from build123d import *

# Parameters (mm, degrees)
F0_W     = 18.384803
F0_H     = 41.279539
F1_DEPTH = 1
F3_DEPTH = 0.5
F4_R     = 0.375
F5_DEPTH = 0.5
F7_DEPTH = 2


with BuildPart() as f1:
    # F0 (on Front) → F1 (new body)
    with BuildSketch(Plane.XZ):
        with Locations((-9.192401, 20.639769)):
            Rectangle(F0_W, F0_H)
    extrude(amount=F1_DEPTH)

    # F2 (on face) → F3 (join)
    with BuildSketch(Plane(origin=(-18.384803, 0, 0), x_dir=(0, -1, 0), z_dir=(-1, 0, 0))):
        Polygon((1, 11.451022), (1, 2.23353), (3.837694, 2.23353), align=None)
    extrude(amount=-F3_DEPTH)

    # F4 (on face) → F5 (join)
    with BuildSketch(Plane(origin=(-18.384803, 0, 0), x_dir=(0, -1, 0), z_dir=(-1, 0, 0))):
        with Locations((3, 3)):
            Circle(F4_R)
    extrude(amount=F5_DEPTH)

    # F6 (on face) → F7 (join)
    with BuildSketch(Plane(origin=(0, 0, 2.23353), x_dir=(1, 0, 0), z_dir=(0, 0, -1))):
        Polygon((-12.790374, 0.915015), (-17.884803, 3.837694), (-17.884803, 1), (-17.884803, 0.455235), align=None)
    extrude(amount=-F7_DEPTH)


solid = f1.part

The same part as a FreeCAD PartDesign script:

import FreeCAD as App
import Part
import Sketcher

V = App.Vector

doc = App.newDocument("Part")
body = doc.addObject("PartDesign::Body", "Body")

# Sketch on XZ plane
sketch1 = body.newObject("Sketcher::SketchObject", "Sketch")
sketch1.AttachmentSupport = (doc.getObject("XZ_Plane"), [""])
sketch1.MapMode = "FlatFace"
sketch1.addGeometry([
    Part.LineSegment(V(-18.384802, 41.279539, 0), V(-18.384802, 0, 0)),
    Part.LineSegment(V(-18.384802, 0, 0), V(0, 0, 0)),
    Part.LineSegment(V(0, 0, 0), V(0, 41.279539, 0)),
    Part.LineSegment(V(0, 41.279539, 0), V(-18.384802, 41.279539, 0)),
], False)
sketch1.addConstraint([
    Sketcher.Constraint("Coincident", 0, 2, 1, 1),
    Sketcher.Constraint("Coincident", 1, 2, 2, 1),
    Sketcher.Constraint("Coincident", 2, 2, 3, 1),
    Sketcher.Constraint("Coincident", 3, 2, 0, 1),
    Sketcher.Constraint("Vertical", 0),
    Sketcher.Constraint("Horizontal", 1),
    Sketcher.Constraint("Vertical", 2),
    Sketcher.Constraint("Horizontal", 3),
    Sketcher.Constraint("Coincident", 1, 2, -1, 1),
    Sketcher.Constraint("DistanceY", 0, 2, 0, 1, 41.279539),
    Sketcher.Constraint("DistanceX", 1, 1, 1, 2, 18.384803),
])
pad1 = body.newObject("PartDesign::Pad", "Pad")
pad1.Profile = sketch1
pad1.Length = 1

# Sketch on YZ plane
sketch2 = body.newObject("Sketcher::SketchObject", "Sketch001")
sketch2.AttachmentSupport = (doc.getObject("YZ_Plane"), [""])
sketch2.MapMode = "FlatFace"
sketch2.AttachmentOffset = App.Placement(V(0, 0, -18.384803), App.Rotation())
sketch2.addGeometry([
    Part.LineSegment(V(-1, 11.451022, 0), V(-1, 2.23353, 0)),
    Part.LineSegment(V(-1, 2.23353, 0), V(-3.837694, 2.23353, 0)),
    Part.LineSegment(V(-3.837694, 2.23353, 0), V(-1, 11.451022, 0)),
], False)
sketch2.addConstraint([
    Sketcher.Constraint("Coincident", 0, 2, 1, 1),
    Sketcher.Constraint("Coincident", 1, 2, 2, 1),
    Sketcher.Constraint("Coincident", 2, 2, 0, 1),
    Sketcher.Constraint("Vertical", 0),
    Sketcher.Constraint("Horizontal", 1),
    Sketcher.Constraint("DistanceX", 0, 2, -1, 1, 1.0),
    Sketcher.Constraint("Distance", 2, 9.644411),
    Sketcher.Constraint("DistanceX", 1, 2, 1, 1, 2.837694),
    Sketcher.Constraint("DistanceY", -1, 1, 0, 2, 2.23353),
])
pad2 = body.newObject("PartDesign::Pad", "Pad001")
pad2.Profile = sketch2
pad2.Length = 0.5

# Sketch on YZ plane
sketch3 = body.newObject("Sketcher::SketchObject", "Sketch002")
sketch3.AttachmentSupport = (doc.getObject("YZ_Plane"), [""])
sketch3.MapMode = "FlatFace"
sketch3.AttachmentOffset = App.Placement(V(0, 0, -18.384803), App.Rotation())
sketch3.addGeometry(Part.Circle(V(-3, 3, 0), V(0, 0, 1), 0.375), False)
sketch3.addConstraint([
    Sketcher.Constraint("Diameter", 0, 0.75),
    Sketcher.Constraint("DistanceX", 0, 3, -1, 1, 3.0),
    Sketcher.Constraint("DistanceY", -1, 1, 0, 3, 3.0),
])
pad3 = body.newObject("PartDesign::Pad", "Pad002")
pad3.Profile = sketch3
pad3.Length = 0.5
pad3.Reversed = True

# Sketch on XY plane
sketch4 = body.newObject("Sketcher::SketchObject", "Sketch003")
sketch4.AttachmentSupport = (doc.getObject("XY_Plane"), [""])
sketch4.MapMode = "FlatFace"
sketch4.AttachmentOffset = App.Placement(V(0, 0, 2.23353), App.Rotation())
sketch4.addGeometry([
    Part.LineSegment(V(-12.790374, -0.915015, 0), V(-17.884803, -3.837694, 0)),
    Part.LineSegment(V(-17.884803, -3.837694, 0), V(-17.884803, -0.455235, 0)),
    Part.LineSegment(V(-17.884803, -0.455235, 0), V(-12.790374, -0.915015, 0)),
], False)
sketch4.addConstraint([
    Sketcher.Constraint("Coincident", 0, 2, 1, 1),
    Sketcher.Constraint("Coincident", 1, 2, 2, 1),
    Sketcher.Constraint("Coincident", 2, 2, 0, 1),
    Sketcher.Constraint("Vertical", 1),
    Sketcher.Constraint("DistanceY", 1, 1, 1, 2, 3.382459),
    Sketcher.Constraint("DistanceX", 1, 2, 2, 2, 5.094429),
    Sketcher.Constraint("DistanceY", 2, 2, 1, 2, 0.45978),
    Sketcher.Constraint("DistanceX", 0, 2, -1, 1, 17.884803),
    Sketcher.Constraint("DistanceY", 0, 2, -1, 1, 3.837694),
])
pad4 = body.newObject("PartDesign::Pad", "Pad003")
pad4.Profile = sketch4
pad4.Length = 2

doc.recompute()
